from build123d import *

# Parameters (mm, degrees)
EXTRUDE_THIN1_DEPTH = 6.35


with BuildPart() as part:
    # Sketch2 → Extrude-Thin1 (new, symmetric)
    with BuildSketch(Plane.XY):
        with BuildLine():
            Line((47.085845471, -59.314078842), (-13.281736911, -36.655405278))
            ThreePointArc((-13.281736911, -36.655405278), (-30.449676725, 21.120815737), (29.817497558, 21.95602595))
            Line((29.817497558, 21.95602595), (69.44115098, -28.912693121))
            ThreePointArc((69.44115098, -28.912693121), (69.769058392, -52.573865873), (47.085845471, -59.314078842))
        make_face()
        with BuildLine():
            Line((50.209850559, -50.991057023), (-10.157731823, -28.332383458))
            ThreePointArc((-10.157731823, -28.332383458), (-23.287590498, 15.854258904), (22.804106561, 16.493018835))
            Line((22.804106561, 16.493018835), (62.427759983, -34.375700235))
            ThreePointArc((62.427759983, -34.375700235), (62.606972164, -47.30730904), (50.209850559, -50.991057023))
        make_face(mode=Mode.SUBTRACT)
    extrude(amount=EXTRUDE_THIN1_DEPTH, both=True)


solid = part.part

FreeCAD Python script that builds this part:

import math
import FreeCAD as App
import Part
import Sketcher
Q = App.Units.Quantity

doc = App.newDocument("Part")
params = doc.addObject("Spreadsheet::Sheet", "Params")
for row, (alias, value) in enumerate([
    ("pad1_length", "0.5 in"),
], start=1):
    params.set(f"A{row}", alias)
    params.set(f"B{row}", "=" + value)
    params.setAlias(f"B{row}", alias)

body = doc.addObject("PartDesign::Body", "Body")

# Sketch on XY plane
sketch1 = body.newObject("Sketcher::SketchObject", "Sketch")
sketch1.AttachmentSupport = (doc.getObject("XY_Plane"), [""])
sketch1.MapMode = "FlatFace"
sketch1.addGeometry(Part.LineSegment(App.Vector(-13, -37, 0), App.Vector(47, -59, 0)), False)
sketch1.addGeometry(Part.ArcOfCircle(Part.Circle(App.Vector(54, -41, 0), App.Vector(0, 0, 1), 20), math.radians(-111), math.radians(38)), False)
sketch1.addGeometry(Part.LineSegment(App.Vector(69, -29, 0), App.Vector(30, 22, 0)), False)
sketch1.addGeometry(Part.ArcOfCircle(Part.Circle(App.Vector(0, -1, 0), App.Vector(0, 0, 1), 38), math.radians(38), math.radians(249)), False)
sketch1.addGeometry(Part.LineSegment(App.Vector(50, -51, 0), App.Vector(-10, -28, 0)), False)
sketch1.addGeometry(Part.ArcOfCircle(Part.Circle(App.Vector(0, -1, 0), App.Vector(0, 0, 1), 29), math.radians(38), math.radians(249)), False)
sketch1.addGeometry(Part.LineSegment(App.Vector(23, 16, 0), App.Vector(62, -34, 0)), False)
sketch1.addGeometry(Part.ArcOfCircle(Part.Circle(App.Vector(54, -41, 0), App.Vector(0, 0, 1), 11), math.radians(-111), math.radians(38)), False)
sketch1.addConstraint(Sketcher.Constraint("Tangent", 0, 2, 1, 1))
sketch1.addConstraint(Sketcher.Constraint("Tangent", 1, 2, 2, 1))
sketch1.addConstraint(Sketcher.Constraint("Tangent", 2, 2, 3, 1))
sketch1.addConstraint(Sketcher.Constraint("Tangent", 3, 2, 0, 1))
sketch1.addConstraint(Sketcher.Constraint("Tangent", 4, 2, 5, 2))
sketch1.addConstraint(Sketcher.Constraint("Tangent", 5, 1, 6, 1))
sketch1.addConstraint(Sketcher.Constraint("Tangent", 6, 2, 7, 2))
sketch1.addConstraint(Sketcher.Constraint("Tangent", 7, 1, 4, 1))
sketch1.addConstraint(Sketcher.Constraint("Coincident", 5, 3, 3, 3))
sketch1.addConstraint(Sketcher.Constraint("Coincident", 7, 3, 1, 3))
sketch1.addConstraint(Sketcher.Constraint("PointOnObject", 3, 3, -2))
sketch1.addConstraint(Sketcher.Constraint("Parallel", 0, 4))
sketch1.addConstraint(Sketcher.Constraint("DistanceY", 3, 3, -1, 1, Q("0.05 in")))
sketch1.addConstraint(Sketcher.Constraint("DistanceX", -1, 1, 1, 3, Q("2.125 in")))
sketch1.addConstraint(Sketcher.Constraint("Radius", 1, 19.604508))
sketch1.addConstraint(Sketcher.Constraint("Radius", 3, 37.795918))
sketch1.addConstraint(Sketcher.Constraint("Radius", 5, 28.905918))
sketch1.addConstraint(Sketcher.Constraint("DistanceY", 0, 2, -1, 1, Q("2.3352 in")))
pad1 = body.newObject("PartDesign::Pad", "Pad")
pad1.Profile = sketch1
pad1.setExpression("Length", "Params.pad1_length")
pad1.Midplane = True

doc.recompute()
